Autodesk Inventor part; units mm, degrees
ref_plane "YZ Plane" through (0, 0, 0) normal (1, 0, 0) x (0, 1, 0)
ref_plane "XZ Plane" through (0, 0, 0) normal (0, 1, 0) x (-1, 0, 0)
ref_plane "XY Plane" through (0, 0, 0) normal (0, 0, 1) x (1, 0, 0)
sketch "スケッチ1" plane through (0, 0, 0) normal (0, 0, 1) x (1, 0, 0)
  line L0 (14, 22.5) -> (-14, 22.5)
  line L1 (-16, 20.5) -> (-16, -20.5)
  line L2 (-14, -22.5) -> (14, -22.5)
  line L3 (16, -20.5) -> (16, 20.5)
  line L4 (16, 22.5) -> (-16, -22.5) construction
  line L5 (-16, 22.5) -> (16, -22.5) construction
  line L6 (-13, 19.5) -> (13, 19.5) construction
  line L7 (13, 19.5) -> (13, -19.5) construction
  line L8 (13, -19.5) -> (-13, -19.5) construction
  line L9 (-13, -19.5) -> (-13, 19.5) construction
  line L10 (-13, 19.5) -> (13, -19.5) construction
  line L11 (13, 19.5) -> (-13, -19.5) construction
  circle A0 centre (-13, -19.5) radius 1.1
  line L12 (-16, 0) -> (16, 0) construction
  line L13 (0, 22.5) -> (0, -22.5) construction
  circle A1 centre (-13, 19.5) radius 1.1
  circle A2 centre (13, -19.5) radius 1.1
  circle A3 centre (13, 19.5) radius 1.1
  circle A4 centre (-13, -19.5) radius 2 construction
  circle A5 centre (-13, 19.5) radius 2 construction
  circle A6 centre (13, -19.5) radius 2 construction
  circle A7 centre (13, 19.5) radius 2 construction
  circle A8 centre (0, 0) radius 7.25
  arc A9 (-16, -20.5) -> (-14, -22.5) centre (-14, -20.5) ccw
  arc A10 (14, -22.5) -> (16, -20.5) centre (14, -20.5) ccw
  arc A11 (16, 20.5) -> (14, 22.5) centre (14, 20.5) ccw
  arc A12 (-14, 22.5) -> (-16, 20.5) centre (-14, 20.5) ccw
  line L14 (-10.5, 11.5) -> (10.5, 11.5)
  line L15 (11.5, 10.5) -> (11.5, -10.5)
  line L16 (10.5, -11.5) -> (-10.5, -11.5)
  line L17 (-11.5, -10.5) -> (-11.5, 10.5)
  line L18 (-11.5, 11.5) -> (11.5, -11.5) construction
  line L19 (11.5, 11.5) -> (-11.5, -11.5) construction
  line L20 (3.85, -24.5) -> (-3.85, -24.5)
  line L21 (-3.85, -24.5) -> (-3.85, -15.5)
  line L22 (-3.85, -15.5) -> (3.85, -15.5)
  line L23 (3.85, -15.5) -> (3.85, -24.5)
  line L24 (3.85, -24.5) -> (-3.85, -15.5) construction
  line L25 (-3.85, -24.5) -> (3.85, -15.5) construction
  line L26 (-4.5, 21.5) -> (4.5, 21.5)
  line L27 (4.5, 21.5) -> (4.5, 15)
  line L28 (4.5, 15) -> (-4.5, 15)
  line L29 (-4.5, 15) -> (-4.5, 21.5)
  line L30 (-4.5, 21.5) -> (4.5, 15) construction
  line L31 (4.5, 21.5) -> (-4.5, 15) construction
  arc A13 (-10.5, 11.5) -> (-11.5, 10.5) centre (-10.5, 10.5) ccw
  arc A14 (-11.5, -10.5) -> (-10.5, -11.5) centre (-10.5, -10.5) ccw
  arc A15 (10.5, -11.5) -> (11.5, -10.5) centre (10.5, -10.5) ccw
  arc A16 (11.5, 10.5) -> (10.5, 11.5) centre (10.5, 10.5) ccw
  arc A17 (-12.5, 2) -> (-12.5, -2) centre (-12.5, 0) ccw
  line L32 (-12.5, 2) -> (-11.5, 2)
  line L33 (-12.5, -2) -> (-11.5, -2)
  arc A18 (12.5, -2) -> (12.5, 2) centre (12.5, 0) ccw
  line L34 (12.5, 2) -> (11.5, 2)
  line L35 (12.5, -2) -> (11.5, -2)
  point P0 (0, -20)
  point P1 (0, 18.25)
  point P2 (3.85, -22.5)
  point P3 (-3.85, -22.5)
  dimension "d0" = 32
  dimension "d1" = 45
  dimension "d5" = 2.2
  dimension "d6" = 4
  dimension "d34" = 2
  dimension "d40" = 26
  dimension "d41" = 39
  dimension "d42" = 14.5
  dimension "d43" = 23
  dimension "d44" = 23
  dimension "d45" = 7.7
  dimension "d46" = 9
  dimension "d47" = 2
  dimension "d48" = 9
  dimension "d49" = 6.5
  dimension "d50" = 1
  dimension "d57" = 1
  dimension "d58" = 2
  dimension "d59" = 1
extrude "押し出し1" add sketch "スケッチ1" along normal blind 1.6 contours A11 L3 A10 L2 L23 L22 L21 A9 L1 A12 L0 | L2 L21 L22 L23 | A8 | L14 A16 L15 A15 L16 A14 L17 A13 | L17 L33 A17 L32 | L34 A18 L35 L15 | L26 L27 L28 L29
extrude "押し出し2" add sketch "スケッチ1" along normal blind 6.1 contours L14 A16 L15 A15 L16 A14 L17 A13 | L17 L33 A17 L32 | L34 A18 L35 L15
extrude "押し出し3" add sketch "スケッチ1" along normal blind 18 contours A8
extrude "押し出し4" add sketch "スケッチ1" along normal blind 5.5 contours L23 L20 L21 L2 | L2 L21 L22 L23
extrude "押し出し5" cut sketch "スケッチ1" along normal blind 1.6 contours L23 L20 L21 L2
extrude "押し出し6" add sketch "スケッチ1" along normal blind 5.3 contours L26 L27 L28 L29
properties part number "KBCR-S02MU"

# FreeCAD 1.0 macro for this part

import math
import FreeCAD as App
import Part
import Sketcher
from FreeCAD import Vector
Q = App.Units.Quantity


def add_polygon(sketch, points):
    """Adds a closed chain of lines whose ends are joined by coincident constraints."""
    first, n = sketch.GeometryCount, len(points)
    for a, b in zip(points, points[1:] + points[:1]):
        sketch.addGeometry(Part.LineSegment(App.Vector(*a, 0), App.Vector(*b, 0)), False)
    for i in range(n):
        sketch.addConstraint(Sketcher.Constraint("Coincident", first + i, 2, first + (i + 1) % n, 1))

doc = App.newDocument("Part")
body = doc.addObject("PartDesign::Body", "Body")

sketch1 = doc.addObject("Sketcher::SketchObject", "Sketch")
body.addObject(sketch1)
sketch1.AttachmentSupport = (doc.XY_Plane, [""])
sketch1.MapMode = "FlatFace"
sketch1.addGeometry([
    Part.ArcOfCircle(Part.Circle(Vector(14, 20.5, 0), Vector(0, 0, 1), 2), math.radians(0), math.radians(90)),
    Part.LineSegment(Vector(14, 22.5, 0), Vector(-14, 22.5, 0)),
    Part.ArcOfCircle(Part.Circle(Vector(-14, 20.5, 0), Vector(0, 0, 1), 2), math.radians(90), math.radians(180)),
    Part.LineSegment(Vector(-16, 20.5, 0), Vector(-16, -20.5, 0)),
    Part.ArcOfCircle(Part.Circle(Vector(-14, -20.5, 0), Vector(0, 0, 1), 2), math.radians(180), math.radians(270)),
    Part.LineSegment(Vector(-14, -22.5, 0), Vector(14, -22.5, 0)),
    Part.ArcOfCircle(Part.Circle(Vector(14, -20.5, 0), Vector(0, 0, 1), 2), math.radians(-90), math.radians(0)),
    Part.LineSegment(Vector(16, -20.5, 0), Vector(16, 20.5, 0)),
    Part.Circle(Vector(-13, -19.5, 0), Vector(0, 0, 1), 1.1),
    Part.Circle(Vector(13, -19.5, 0), Vector(0, 0, 1), 1.1),
    Part.Circle(Vector(-13, 19.5, 0), Vector(0, 0, 1), 1.1),
    Part.Circle(Vector(13, 19.5, 0), Vector(0, 0, 1), 1.1),
], False)
sketch1.addConstraint([
    Sketcher.Constraint("Tangent", 0, 2, 1, 1),
    Sketcher.Constraint("Tangent", 1, 2, 2, 1),
    Sketcher.Constraint("Tangent", 2, 2, 3, 1),
    Sketcher.Constraint("Tangent", 3, 2, 4, 1),
    Sketcher.Constraint("Tangent", 4, 2, 5, 1),
    Sketcher.Constraint("Tangent", 5, 2, 6, 1),
    Sketcher.Constraint("Tangent", 6, 2, 7, 1),
    Sketcher.Constraint("Tangent", 7, 2, 0, 1),
    Sketcher.Constraint("Horizontal", 1),
    Sketcher.Constraint("Vertical", 3),
    Sketcher.Constraint("Horizontal", 5),
    Sketcher.Constraint("Vertical", 7),
    Sketcher.Constraint("Equal", 0, 2),
    Sketcher.Constraint("Equal", 2, 4),
    Sketcher.Constraint("Equal", 4, 6),
    Sketcher.Constraint("Equal", 8, 9),
    Sketcher.Constraint("Equal", 9, 10),
    Sketcher.Constraint("Equal", 10, 11),
    Sketcher.Constraint("Symmetric", 0, 3, 4, 3, -1, 1),
    Sketcher.Constraint("Symmetric", 9, 3, 10, 3, -1, 1),
    Sketcher.Constraint("Symmetric", 8, 3, 11, 3, -1, 1),
    Sketcher.Constraint("Symmetric", 8, 3, 9, 3, -2),
    Sketcher.Constraint("Radius", 0, Q("2 mm")),
    Sketcher.Constraint("Diameter", 8, Q("2.2 mm")),
    Sketcher.Constraint("DistanceX", 4, 3, 8, 3, Q("1 mm")),
    Sketcher.Constraint("DistanceY", 4, 3, 8, 3, Q("1 mm")),
    Sketcher.Constraint("DistanceX", 8, 3, 9, 3, Q("26 mm")),
    Sketcher.Constraint("DistanceY", 8, 3, 10, 3, Q("39 mm")),
])
pad1 = doc.addObject("PartDesign::Pad", "Pad")
body.addObject(pad1)
pad1.Profile = sketch1
pad1.Length = 1.6

sketch2 = doc.addObject("Sketcher::SketchObject", "Sketch001")
body.addObject(sketch2)
sketch2.AttachmentSupport = (doc.XY_Plane, [""])
sketch2.MapMode = "FlatFace"
sketch2.addGeometry([
    Part.LineSegment(Vector(10.5, 11.5, 0), Vector(-10.5, 11.5, 0)),
    Part.ArcOfCircle(Part.Circle(Vector(-10.5, 10.5, 0), Vector(0, 0, 1), 1), math.radians(90), math.radians(180)),
    Part.LineSegment(Vector(-11.5, 10.5, 0), Vector(-11.5, 2, 0)),
    Part.LineSegment(Vector(-11.5, 2, 0), Vector(-12.5, 2, 0)),
    Part.ArcOfCircle(Part.Circle(Vector(-12.5, 0, 0), Vector(0, 0, 1), 2), math.radians(90), math.radians(270)),
    Part.LineSegment(Vector(-12.5, -2, 0), Vector(-11.5, -2, 0)),
    Part.LineSegment(Vector(-11.5, -2, 0), Vector(-11.5, -10.5, 0)),
    Part.ArcOfCircle(Part.Circle(Vector(-10.5, -10.5, 0), Vector(0, 0, 1), 1), math.radians(180), math.radians(270)),
    Part.LineSegment(Vector(-10.5, -11.5, 0), Vector(10.5, -11.5, 0)),
    Part.ArcOfCircle(Part.Circle(Vector(10.5, -10.5, 0), Vector(0, 0, 1), 1), math.radians(-90), math.radians(0)),
    Part.LineSegment(Vector(11.5, -10.5, 0), Vector(11.5, -2, 0)),
    Part.LineSegment(Vector(11.5, -2, 0), Vector(12.5, -2, 0)),
    Part.ArcOfCircle(Part.Circle(Vector(12.5, 0, 0), Vector(0, 0, 1), 2), math.radians(-90), math.radians(90)),
    Part.LineSegment(Vector(12.5, 2, 0), Vector(11.5, 2, 0)),
    Part.LineSegment(Vector(11.5, 2, 0), Vector(11.5, 10.5, 0)),
    Part.ArcOfCircle(Part.Circle(Vector(10.5, 10.5, 0), Vector(0, 0, 1), 1), math.radians(0), math.radians(90)),
    Part.Circle(Vector(0, 0, 0), Vector(0, 0, 1), 7.2),
], False)
sketch2.addConstraint([
    Sketcher.Constraint("Tangent", 0, 2, 1, 1),
    Sketcher.Constraint("Tangent", 1, 2, 2, 1),
    Sketcher.Constraint("Coincident", 2, 2, 3, 1),
    Sketcher.Constraint("Tangent", 3, 2, 4, 1),
    Sketcher.Constraint("Tangent", 4, 2, 5, 1),
    Sketcher.Constraint("Coincident", 5, 2, 6, 1),
    Sketcher.Constraint("Tangent", 6, 2, 7, 1),
    Sketcher.Constraint("Tangent", 7, 2, 8, 1),
    Sketcher.Constraint("Tangent", 8, 2, 9, 1),
    Sketcher.Constraint("Tangent", 9, 2, 10, 1),
    Sketcher.Constraint("Coincident", 10, 2, 11, 1),
    Sketcher.Constraint("Tangent", 11, 2, 12, 1),
    Sketcher.Constraint("Tangent", 12, 2, 13, 1),
    Sketcher.Constraint("Coincident", 13, 2, 14, 1),
    Sketcher.Constraint("Tangent", 14, 2, 15, 1),
    Sketcher.Constraint("Tangent", 15, 2, 0, 1),
    Sketcher.Constraint("Horizontal", 0),
    Sketcher.Constraint("Vertical", 2),
    Sketcher.Constraint("Horizontal", 3),
    Sketcher.Constraint("Horizontal", 5),
    Sketcher.Constraint("Vertical", 6),
    Sketcher.Constraint("Horizontal", 8),
    Sketcher.Constraint("Vertical", 10),
    Sketcher.Constraint("Horizontal", 11),
    Sketcher.Constraint("Horizontal", 13),
    Sketcher.Constraint("Vertical", 14),
    Sketcher.Constraint("Coincident", 16, 3, -1, 1),
    Sketcher.Constraint("Equal", 1, 7),
    Sketcher.Constraint("Equal", 7, 9),
    Sketcher.Constraint("Equal", 4, 12),
    Sketcher.Constraint("Equal", 9, 15),
    Sketcher.Constraint("Symmetric", 1, 3, 9, 3, -1, 1),
    Sketcher.Constraint("Symmetric", 4, 3, 12, 3, -1, 1),
    Sketcher.Constraint("Symmetric", 5, 2, 10, 2, -2),
    Sketcher.Constraint("Vertical", 9, 3, 15, 3),
    Sketcher.Constraint("Radius", 1, Q("1 mm")),
    Sketcher.Constraint("Radius", 4, Q("2 mm")),
    Sketcher.Constraint("Diameter", 16, Q("14.5 mm")),
    Sketcher.Constraint("DistanceX", 3, 2, 3, 1, Q("1 mm")),
    Sketcher.Constraint("DistanceX", 4, 3, 9, 3, Q("23 mm")),
    Sketcher.Constraint("DistanceY", 2, 2, 2, 1, Q("8.5 mm")),
])
pad2 = doc.addObject("PartDesign::Pad", "Pad001")
body.addObject(pad2)
pad2.Profile = sketch2
pad2.Length = 6.1

sketch3 = doc.addObject("Sketcher::SketchObject", "Sketch002")
body.addObject(sketch3)
sketch3.AttachmentSupport = (doc.XY_Plane, [""])
sketch3.MapMode = "FlatFace"
sketch3.addGeometry(Part.Circle(Vector(0, 0, 0), Vector(0, 0, 1), 7), False)
sketch3.addConstraint([
    Sketcher.Constraint("Coincident", 0, 3, -1, 1),
    Sketcher.Constraint("Diameter", 0, Q("14.5 mm")),
])
pad3 = doc.addObject("PartDesign::Pad", "Pad002")
body.addObject(pad3)
pad3.Profile = sketch3
pad3.Length = 18

sketch4 = doc.addObject("Sketcher::SketchObject", "Sketch003")
body.addObject(sketch4)
sketch4.AttachmentSupport = (doc.XY_Plane, [""])
sketch4.MapMode = "FlatFace"
add_polygon(sketch4, [(4, -24), (4, -16), (-4, -16), (-4, -24)])
sketch4.addConstraint([
    Sketcher.Constraint("Vertical", 0),
    Sketcher.Constraint("Horizontal", 1),
    Sketcher.Constraint("Vertical", 2),
    Sketcher.Constraint("Horizontal", 3),
    Sketcher.Constraint("DistanceY", 0, 1, 0, 2, Q("9 mm")),
    Sketcher.Constraint("DistanceX", 1, 2, 1, 1, Q("7.7 mm")),
    Sketcher.Constraint("DistanceY", 0, 2, -1, 1, Q("15.5 mm")),
    Sketcher.Constraint("DistanceX", -1, 1, 0, 2, Q("3.85 mm")),
])
pad4 = doc.addObject("PartDesign::Pad", "Pad003")
body.addObject(pad4)
pad4.Profile = sketch4
pad4.Length = 5.5

sketch5 = doc.addObject("Sketcher::SketchObject", "Sketch004")
body.addObject(sketch5)
sketch5.AttachmentSupport = (doc.XY_Plane, [""])
sketch5.MapMode = "FlatFace"
add_polygon(sketch5, [(3.9, -24.5), (3.9, -22.5), (-3.9, -22.5), (-3.9, -24.5)])
sketch5.addConstraint([
    Sketcher.Constraint("Vertical", 0),
    Sketcher.Constraint("Horizontal", 1),
    Sketcher.Constraint("Vertical", 2),
    Sketcher.Constraint("Horizontal", 3),
    Sketcher.Constraint("DistanceY", 0, 1, 0, 2, Q("2 mm")),
    Sketcher.Constraint("DistanceX", 1, 2, 1, 1, Q("7.7 mm")),
    Sketcher.Constraint("DistanceY", 0, 2, -1, 1, Q("22.5 mm")),
    Sketcher.Constraint("DistanceX", -1, 1, 0, 2, Q("3.85 mm")),
])
pocket1 = doc.addObject("PartDesign::Pocket", "Pocket")
body.addObject(pocket1)
pocket1.Profile = sketch5
pocket1.Length = 1.6
pocket1.Reversed = True

sketch6 = doc.addObject("Sketcher::SketchObject", "Sketch005")
body.addObject(sketch6)
sketch6.AttachmentSupport = (doc.XY_Plane, [""])
sketch6.MapMode = "FlatFace"
add_polygon(sketch6, [(4, 22), (-4, 22), (-4, 15), (4, 15)])
sketch6.addConstraint([
    Sketcher.Constraint("Horizontal", 0),
    Sketcher.Constraint("Vertical", 1),
    Sketcher.Constraint("Horizontal", 2),
    Sketcher.Constraint("Vertical", 3),
    Sketcher.Constraint("DistanceX", 0, 2, 0, 1, Q("9 mm")),
    Sketcher.Constraint("DistanceY", 1, 2, 1, 1, Q("6.5 mm")),
    Sketcher.Constraint("DistanceY", -1, 1, 1, 2, Q("15 mm")),
    Sketcher.Constraint("DistanceX", 0, 2, -1, 1, Q("4.5 mm")),
])
pad5 = doc.addObject("PartDesign::Pad", "Pad004")
body.addObject(pad5)
pad5.Profile = sketch6
pad5.Length = 5.3

doc.recompute()
